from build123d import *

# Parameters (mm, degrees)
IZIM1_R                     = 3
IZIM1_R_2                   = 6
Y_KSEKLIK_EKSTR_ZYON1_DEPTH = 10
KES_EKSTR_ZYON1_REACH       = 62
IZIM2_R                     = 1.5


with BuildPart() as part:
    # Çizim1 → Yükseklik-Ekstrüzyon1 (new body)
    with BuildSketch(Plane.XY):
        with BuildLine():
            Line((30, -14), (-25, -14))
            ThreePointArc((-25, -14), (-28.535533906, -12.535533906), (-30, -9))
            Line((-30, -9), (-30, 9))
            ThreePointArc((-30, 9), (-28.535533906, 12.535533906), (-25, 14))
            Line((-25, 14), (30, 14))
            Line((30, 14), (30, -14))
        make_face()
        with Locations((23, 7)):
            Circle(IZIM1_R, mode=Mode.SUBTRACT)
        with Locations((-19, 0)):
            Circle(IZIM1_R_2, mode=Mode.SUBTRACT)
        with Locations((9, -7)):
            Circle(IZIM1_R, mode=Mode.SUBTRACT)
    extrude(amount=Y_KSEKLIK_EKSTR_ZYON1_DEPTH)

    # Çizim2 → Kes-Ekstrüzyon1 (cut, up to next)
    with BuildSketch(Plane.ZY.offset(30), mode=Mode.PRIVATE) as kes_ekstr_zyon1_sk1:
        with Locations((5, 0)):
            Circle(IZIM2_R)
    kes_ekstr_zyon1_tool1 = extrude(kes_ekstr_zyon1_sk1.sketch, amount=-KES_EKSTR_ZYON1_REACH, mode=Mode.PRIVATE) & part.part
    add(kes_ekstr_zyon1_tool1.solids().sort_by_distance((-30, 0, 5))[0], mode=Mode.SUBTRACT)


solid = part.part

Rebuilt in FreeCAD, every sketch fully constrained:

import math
import FreeCAD as App
import Part
import Sketcher
from FreeCAD import Vector

doc = App.newDocument("Part")
body = doc.addObject("PartDesign::Body", "Body")

sketch1 = doc.addObject("Sketcher::SketchObject", "Sketch")
body.addObject(sketch1)
sketch1.AttachmentSupport = (doc.XY_Plane, [""])
sketch1.MapMode = "FlatFace"
sketch1.addGeometry(Part.LineSegment(Vector(-25, -14, 0), Vector(30, -14, 0)), False)
sketch1.addGeometry(Part.LineSegment(Vector(30, -14, 0), Vector(30, 14, 0)), False)
sketch1.addGeometry(Part.LineSegment(Vector(30, 14, 0), Vector(-25, 14, 0)), False)
sketch1.addGeometry(Part.ArcOfCircle(Part.Circle(Vector(-25, 9, 0), Vector(0, 0, 1), 5), math.radians(90), math.radians(180)), False)
sketch1.addGeometry(Part.LineSegment(Vector(-30, 9, 0), Vector(-30, -9, 0)), False)
sketch1.addGeometry(Part.ArcOfCircle(Part.Circle(Vector(-25, -9, 0), Vector(0, 0, 1), 5), math.radians(180), math.radians(270)), False)
sketch1.addGeometry(Part.Circle(Vector(9, -7, 0), Vector(0, 0, 1), 3), False)
sketch1.addGeometry(Part.Circle(Vector(23, 7, 0), Vector(0, 0, 1), 3), False)
sketch1.addGeometry(Part.Circle(Vector(-19, 0, 0), Vector(0, 0, 1), 6), False)
sketch1.addConstraint(Sketcher.Constraint("Coincident", 0, 2, 1, 1))
sketch1.addConstraint(Sketcher.Constraint("Coincident", 1, 2, 2, 1))
sketch1.addConstraint(Sketcher.Constraint("Tangent", 2, 2, 3, 1))
sketch1.addConstraint(Sketcher.Constraint("Tangent", 3, 2, 4, 1))
sketch1.addConstraint(Sketcher.Constraint("Tangent", 4, 2, 5, 1))
sketch1.addConstraint(Sketcher.Constraint("Tangent", 5, 2, 0, 1))
sketch1.addConstraint(Sketcher.Constraint("Horizontal", 0))
sketch1.addConstraint(Sketcher.Constraint("Vertical", 1))
sketch1.addConstraint(Sketcher.Constraint("Horizontal", 2))
sketch1.addConstraint(Sketcher.Constraint("Vertical", 4))
sketch1.addConstraint(Sketcher.Constraint("Equal", 3, 5))
sketch1.addConstraint(Sketcher.Constraint("Equal", 6, 7))
sketch1.addConstraint(Sketcher.Constraint("PointOnObject", 8, 3, -1))
sketch1.addConstraint(Sketcher.Constraint("Diameter", 6, 6.0))
sketch1.addConstraint(Sketcher.Constraint("Diameter", 8, 12.0))
sketch1.addConstraint(Sketcher.Constraint("Radius", 3, 5.0))
sketch1.addConstraint(Sketcher.Constraint("DistanceX", 0, 1, 0, 2, 55.0))
sketch1.addConstraint(Sketcher.Constraint("DistanceY", 1, 1, 1, 2, 28.0))
sketch1.addConstraint(Sketcher.Constraint("DistanceX", 3, 3, -1, 1, 25.0))
sketch1.addConstraint(Sketcher.Constraint("DistanceY", -1, 1, 3, 3, 9.0))
sketch1.addConstraint(Sketcher.Constraint("DistanceX", -1, 1, 6, 3, 9.0))
sketch1.addConstraint(Sketcher.Constraint("DistanceY", 6, 3, -1, 1, 7.0))
sketch1.addConstraint(Sketcher.Constraint("DistanceX", -1, 1, 7, 3, 23.0))
sketch1.addConstraint(Sketcher.Constraint("DistanceY", -1, 1, 7, 3, 7.0))
sketch1.addConstraint(Sketcher.Constraint("DistanceX", 8, 3, -1, 1, 19.0))
pad1 = doc.addObject("PartDesign::Pad", "Pad")
body.addObject(pad1)
pad1.Profile = sketch1
pad1.Length = 10

sketch2 = doc.addObject("Sketcher::SketchObject", "Sketch001")
body.addObject(sketch2)
sketch2.AttachmentSupport = (doc.YZ_Plane, [""])
sketch2.MapMode = "FlatFace"
sketch2.AttachmentOffset = App.Placement(Vector(0, 0, -30), App.Rotation())
sketch2.addGeometry(Part.Circle(Vector(0, 5, 0), Vector(0, 0, 1), 1.5), False)
sketch2.addConstraint(Sketcher.Constraint("PointOnObject", 0, 3, -2))
sketch2.addConstraint(Sketcher.Constraint("Diameter", 0, 3.0))
sketch2.addConstraint(Sketcher.Constraint("DistanceY", -1, 1, 0, 3, 5.0))
pocket1 = doc.addObject("PartDesign::Pocket", "Pocket")
body.addObject(pocket1)
pocket1.Profile = sketch2
pocket1.Type = "UpToFirst"
pocket1.Reversed = True

doc.recompute()
